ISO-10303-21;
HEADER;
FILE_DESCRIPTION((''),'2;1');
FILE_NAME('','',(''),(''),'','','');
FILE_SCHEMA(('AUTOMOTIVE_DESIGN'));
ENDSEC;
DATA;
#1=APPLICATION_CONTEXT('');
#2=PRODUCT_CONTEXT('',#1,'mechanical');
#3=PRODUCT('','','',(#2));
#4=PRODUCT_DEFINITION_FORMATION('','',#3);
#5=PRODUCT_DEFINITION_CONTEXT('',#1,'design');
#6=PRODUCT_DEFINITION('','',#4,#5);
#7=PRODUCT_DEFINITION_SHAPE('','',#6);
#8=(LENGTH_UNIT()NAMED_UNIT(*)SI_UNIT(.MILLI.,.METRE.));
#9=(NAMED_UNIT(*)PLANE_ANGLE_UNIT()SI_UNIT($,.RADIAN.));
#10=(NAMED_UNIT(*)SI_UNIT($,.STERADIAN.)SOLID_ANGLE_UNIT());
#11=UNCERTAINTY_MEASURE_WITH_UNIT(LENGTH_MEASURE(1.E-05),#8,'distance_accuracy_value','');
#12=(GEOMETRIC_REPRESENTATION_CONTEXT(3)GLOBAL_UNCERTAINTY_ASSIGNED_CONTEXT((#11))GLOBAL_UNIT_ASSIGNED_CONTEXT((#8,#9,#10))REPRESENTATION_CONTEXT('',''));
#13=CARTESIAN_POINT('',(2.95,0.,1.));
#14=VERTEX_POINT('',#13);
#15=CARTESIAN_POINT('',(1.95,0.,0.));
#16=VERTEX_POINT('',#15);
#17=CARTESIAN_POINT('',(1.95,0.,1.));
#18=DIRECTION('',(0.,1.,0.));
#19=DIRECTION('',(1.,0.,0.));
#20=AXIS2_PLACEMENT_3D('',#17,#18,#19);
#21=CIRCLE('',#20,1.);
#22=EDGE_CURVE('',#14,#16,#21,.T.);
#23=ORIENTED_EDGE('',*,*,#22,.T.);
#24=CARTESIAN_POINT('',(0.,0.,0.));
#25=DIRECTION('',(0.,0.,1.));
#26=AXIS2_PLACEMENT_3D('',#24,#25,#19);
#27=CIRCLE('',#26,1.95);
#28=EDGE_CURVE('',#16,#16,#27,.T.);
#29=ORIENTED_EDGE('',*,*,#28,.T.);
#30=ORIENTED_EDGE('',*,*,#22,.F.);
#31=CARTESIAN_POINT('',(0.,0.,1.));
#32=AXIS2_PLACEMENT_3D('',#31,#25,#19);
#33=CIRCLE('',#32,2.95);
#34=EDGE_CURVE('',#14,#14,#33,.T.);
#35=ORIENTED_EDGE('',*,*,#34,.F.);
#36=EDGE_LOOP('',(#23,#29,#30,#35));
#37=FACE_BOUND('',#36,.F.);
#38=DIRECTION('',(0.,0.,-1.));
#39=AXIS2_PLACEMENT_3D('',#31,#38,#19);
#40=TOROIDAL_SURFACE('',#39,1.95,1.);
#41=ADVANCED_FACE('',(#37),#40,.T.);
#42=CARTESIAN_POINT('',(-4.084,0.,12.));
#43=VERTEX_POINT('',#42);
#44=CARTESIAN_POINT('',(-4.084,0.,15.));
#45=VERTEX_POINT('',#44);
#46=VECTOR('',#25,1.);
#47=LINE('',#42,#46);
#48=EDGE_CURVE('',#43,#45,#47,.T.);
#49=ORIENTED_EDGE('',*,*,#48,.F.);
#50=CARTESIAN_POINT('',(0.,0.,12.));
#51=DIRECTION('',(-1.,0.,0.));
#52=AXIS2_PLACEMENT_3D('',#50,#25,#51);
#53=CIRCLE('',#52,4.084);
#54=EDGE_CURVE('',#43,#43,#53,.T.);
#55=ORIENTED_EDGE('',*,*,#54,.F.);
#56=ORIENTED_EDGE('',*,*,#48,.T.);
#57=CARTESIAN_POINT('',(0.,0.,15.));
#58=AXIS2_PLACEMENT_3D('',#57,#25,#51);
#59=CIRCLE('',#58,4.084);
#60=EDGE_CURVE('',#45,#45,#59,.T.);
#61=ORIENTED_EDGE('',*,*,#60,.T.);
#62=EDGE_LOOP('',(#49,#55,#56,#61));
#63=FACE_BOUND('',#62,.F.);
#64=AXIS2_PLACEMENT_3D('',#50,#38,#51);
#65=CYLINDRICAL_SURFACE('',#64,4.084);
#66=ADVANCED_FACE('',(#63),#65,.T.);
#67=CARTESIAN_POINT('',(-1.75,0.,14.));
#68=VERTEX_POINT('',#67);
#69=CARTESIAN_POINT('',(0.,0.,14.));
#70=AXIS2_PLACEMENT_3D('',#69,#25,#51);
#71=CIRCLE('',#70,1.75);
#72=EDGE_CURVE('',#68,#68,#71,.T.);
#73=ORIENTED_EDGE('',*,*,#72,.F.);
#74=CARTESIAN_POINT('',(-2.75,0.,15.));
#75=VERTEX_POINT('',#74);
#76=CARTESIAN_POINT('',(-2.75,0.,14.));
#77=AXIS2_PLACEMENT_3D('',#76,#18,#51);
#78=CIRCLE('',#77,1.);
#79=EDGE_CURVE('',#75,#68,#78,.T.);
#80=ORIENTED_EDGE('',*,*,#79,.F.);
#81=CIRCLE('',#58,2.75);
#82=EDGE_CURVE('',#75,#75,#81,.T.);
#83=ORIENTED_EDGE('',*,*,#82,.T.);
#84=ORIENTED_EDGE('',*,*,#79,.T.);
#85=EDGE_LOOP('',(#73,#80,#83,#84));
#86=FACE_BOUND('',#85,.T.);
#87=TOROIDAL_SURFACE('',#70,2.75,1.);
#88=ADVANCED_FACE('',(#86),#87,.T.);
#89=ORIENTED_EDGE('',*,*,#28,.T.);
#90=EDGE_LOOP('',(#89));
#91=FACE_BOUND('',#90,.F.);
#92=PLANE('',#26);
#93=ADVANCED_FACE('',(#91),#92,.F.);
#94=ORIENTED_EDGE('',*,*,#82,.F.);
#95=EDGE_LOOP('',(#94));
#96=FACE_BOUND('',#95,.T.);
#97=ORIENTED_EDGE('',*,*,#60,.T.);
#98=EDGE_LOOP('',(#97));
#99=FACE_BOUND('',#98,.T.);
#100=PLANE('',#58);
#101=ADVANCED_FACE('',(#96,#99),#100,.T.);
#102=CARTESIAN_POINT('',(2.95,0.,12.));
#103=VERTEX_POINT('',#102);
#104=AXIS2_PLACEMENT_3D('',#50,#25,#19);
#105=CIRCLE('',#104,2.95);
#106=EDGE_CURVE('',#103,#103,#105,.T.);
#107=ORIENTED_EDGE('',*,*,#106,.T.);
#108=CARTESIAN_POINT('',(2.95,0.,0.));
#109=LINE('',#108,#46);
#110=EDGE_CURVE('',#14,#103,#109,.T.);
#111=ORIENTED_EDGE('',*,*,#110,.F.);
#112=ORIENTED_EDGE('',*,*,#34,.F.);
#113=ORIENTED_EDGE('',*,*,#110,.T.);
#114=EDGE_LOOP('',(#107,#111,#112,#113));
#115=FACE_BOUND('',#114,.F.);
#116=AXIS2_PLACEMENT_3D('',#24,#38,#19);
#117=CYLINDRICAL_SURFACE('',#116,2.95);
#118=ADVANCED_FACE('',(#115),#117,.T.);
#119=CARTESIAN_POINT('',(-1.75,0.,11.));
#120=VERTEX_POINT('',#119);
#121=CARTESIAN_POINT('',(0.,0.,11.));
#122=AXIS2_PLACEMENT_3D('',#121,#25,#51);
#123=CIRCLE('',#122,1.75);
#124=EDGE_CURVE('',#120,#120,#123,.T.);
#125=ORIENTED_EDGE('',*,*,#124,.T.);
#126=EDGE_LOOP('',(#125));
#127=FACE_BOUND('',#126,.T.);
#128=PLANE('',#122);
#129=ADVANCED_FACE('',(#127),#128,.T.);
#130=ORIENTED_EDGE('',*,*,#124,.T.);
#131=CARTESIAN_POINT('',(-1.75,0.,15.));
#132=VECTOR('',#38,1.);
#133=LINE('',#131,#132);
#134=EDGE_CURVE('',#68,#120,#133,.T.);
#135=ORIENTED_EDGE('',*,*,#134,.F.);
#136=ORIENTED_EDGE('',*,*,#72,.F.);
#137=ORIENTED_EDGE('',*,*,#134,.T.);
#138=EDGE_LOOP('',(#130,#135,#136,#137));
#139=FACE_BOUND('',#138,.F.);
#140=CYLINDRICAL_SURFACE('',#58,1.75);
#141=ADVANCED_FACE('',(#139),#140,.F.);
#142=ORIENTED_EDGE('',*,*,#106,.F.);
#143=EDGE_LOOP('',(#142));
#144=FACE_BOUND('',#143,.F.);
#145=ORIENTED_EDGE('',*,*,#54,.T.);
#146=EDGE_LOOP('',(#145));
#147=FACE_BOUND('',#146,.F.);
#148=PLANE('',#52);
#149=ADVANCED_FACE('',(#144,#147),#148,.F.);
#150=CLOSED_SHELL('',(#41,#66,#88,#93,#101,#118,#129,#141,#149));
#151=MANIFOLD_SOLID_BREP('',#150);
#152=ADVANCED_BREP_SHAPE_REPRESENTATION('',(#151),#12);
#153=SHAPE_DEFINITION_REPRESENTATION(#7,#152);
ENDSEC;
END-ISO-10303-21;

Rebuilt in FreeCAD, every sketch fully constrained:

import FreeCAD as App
import Part
import Sketcher
from FreeCAD import Vector


def edges_at(feature, points):
    """Names of the edges that pass closest to the given points."""
    edges = feature.Shape.Edges
    near = lambda p: min(range(len(edges)), key=lambda i: edges[i].distToShape(Part.Vertex(*p))[0])
    return sorted({f"Edge{near(p) + 1}" for p in points})

doc = App.newDocument("Part")
body = doc.addObject("PartDesign::Body", "Body")

# Sketch on XY plane
sketch1 = doc.addObject("Sketcher::SketchObject", "Sketch")
body.addObject(sketch1)
sketch1.AttachmentSupport = (doc.XY_Plane, [""])
sketch1.MapMode = "FlatFace"
sketch1.addGeometry(Part.Circle(Vector(0, 0, 0), Vector(0, 0, 1), 2.95), False)
sketch1.addConstraint([
    Sketcher.Constraint("Coincident", 0, 3, -1, 1),
    Sketcher.Constraint("Diameter", 0, 5.9),
])
pad1 = doc.addObject("PartDesign::Pad", "Pad")
body.addObject(pad1)
pad1.Profile = sketch1
pad1.Length = 12

# Sketch on XY plane
sketch2 = doc.addObject("Sketcher::SketchObject", "Sketch001")
body.addObject(sketch2)
sketch2.AttachmentSupport = (doc.XY_Plane, [""])
sketch2.MapMode = "FlatFace"
sketch2.AttachmentOffset = App.Placement(Vector(0, 0, 12), App.Rotation())
sketch2.addGeometry(Part.Circle(Vector(0, 0, 0), Vector(0, 0, 1), 4.084), False)
sketch2.addConstraint([
    Sketcher.Constraint("Coincident", 0, 3, -1, 1),
    Sketcher.Constraint("Diameter", 0, 8.168),
])
pad2 = doc.addObject("PartDesign::Pad", "Pad001")
body.addObject(pad2)
pad2.Profile = sketch2
pad2.Length = 3

# Sketch on XY plane
sketch3 = doc.addObject("Sketcher::SketchObject", "Sketch002")
body.addObject(sketch3)
sketch3.AttachmentSupport = (doc.XY_Plane, [""])
sketch3.MapMode = "FlatFace"
sketch3.AttachmentOffset = App.Placement(Vector(0, 0, 15), App.Rotation())
sketch3.addGeometry(Part.Circle(Vector(0, 0, 0), Vector(0, 0, 1), 1.75), False)
sketch3.addConstraint([
    Sketcher.Constraint("Coincident", 0, 3, -1, 1),
    Sketcher.Constraint("Diameter", 0, 3.5),
])
pocket1 = doc.addObject("PartDesign::Pocket", "Pocket")
body.addObject(pocket1)
pocket1.Profile = sketch3
pocket1.Length = 4
doc.recompute()

fillet = doc.addObject("PartDesign::Fillet", "Fillet")
body.addObject(fillet)
fillet.Base = (pocket1, edges_at(pocket1, [(-2.75, -1.067, 0)]))
fillet.Radius = 1
doc.recompute()

fillet2 = doc.addObject("PartDesign::Fillet", "Fillet001")
body.addObject(fillet2)
fillet2.Base = (fillet, edges_at(fillet, [(1.632, -0.633, 15)]))
fillet2.Radius = 1

doc.recompute()
